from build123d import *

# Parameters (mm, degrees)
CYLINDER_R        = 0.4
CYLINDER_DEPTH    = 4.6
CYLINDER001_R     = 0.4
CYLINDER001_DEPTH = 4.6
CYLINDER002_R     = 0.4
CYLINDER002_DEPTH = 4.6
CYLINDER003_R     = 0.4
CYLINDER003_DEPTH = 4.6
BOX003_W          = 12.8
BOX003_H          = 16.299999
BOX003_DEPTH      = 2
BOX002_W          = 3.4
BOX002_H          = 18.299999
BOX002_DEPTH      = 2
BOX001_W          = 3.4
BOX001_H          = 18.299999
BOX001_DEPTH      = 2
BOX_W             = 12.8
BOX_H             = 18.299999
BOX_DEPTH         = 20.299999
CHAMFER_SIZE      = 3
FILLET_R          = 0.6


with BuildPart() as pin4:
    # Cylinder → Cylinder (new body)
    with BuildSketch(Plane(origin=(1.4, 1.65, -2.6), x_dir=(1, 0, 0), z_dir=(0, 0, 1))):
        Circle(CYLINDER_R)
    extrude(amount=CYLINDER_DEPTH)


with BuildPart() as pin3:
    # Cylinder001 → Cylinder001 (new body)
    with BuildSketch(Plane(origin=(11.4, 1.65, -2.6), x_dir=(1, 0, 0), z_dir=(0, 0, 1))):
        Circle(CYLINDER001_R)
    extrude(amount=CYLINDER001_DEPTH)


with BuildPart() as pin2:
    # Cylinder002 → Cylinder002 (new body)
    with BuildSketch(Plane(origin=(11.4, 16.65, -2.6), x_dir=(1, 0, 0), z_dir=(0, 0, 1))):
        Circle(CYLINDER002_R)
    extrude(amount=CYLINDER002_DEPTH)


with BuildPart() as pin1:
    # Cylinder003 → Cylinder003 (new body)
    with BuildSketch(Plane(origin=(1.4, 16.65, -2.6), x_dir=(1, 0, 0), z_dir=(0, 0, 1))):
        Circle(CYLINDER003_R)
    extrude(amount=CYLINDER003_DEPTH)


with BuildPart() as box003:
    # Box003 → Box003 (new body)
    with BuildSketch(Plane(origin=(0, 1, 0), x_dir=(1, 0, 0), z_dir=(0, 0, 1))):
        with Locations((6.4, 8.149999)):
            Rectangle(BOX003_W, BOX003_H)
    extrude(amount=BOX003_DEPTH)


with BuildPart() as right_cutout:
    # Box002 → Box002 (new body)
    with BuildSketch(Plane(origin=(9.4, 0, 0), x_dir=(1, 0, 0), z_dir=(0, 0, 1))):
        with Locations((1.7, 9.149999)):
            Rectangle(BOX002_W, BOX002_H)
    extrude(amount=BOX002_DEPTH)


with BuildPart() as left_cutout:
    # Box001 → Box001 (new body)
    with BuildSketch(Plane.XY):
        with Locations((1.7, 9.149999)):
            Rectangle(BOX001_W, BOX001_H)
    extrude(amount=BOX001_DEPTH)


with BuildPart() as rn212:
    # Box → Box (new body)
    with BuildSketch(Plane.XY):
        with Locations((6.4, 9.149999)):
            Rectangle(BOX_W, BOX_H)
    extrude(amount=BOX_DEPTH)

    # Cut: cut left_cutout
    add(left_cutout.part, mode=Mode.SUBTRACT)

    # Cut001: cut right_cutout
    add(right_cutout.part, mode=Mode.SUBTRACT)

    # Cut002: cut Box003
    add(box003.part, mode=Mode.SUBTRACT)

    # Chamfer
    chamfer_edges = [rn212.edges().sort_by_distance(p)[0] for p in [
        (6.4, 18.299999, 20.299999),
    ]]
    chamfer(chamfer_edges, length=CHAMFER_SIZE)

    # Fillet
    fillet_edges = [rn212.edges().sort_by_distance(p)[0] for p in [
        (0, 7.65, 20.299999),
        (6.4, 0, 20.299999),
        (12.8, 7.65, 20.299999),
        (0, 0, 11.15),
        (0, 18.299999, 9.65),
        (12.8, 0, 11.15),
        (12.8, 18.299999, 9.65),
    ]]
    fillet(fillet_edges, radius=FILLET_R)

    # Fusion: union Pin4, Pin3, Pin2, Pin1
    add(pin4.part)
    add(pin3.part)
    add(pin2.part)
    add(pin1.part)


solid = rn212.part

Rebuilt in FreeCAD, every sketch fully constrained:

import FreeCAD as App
import Part
import Sketcher
Q = App.Units.Quantity


def edges_at(feature, points):
    """Names of the edges that pass closest to the given points."""
    edges = feature.Shape.Edges
    near = lambda p: min(range(len(edges)), key=lambda i: edges[i].distToShape(Part.Vertex(*p))[0])
    return sorted({f"Edge{near(p) + 1}" for p in points})


def add_polygon(sketch, points):
    """Adds a closed chain of lines whose ends are joined by coincident constraints."""
    first, n = sketch.GeometryCount, len(points)
    for a, b in zip(points, points[1:] + points[:1]):
        sketch.addGeometry(Part.LineSegment(App.Vector(*a, 0), App.Vector(*b, 0)), False)
    for i in range(n):
        sketch.addConstraint(Sketcher.Constraint("Coincident", first + i, 2, first + (i + 1) % n, 1))

doc = App.newDocument("Part")
body = doc.addObject("PartDesign::Body", "Body")

# Sketch on XY plane
sketch1 = doc.addObject("Sketcher::SketchObject", "Sketch")
body.addObject(sketch1)
sketch1.AttachmentSupport = (doc.XY_Plane, [""])
sketch1.MapMode = "FlatFace"
sketch1.AttachmentOffset = App.Placement(App.Vector(0, 0, -2.6), App.Rotation())
sketch1.addGeometry(Part.Circle(App.Vector(1.4, 1.65, 0), App.Vector(0, 0, 1), 0.4), False)
sketch1.addConstraint([
    Sketcher.Constraint("Diameter", 0, Q("0.8 mm")),
    Sketcher.Constraint("DistanceX", -1, 1, 0, 3, Q("1.4 mm")),
    Sketcher.Constraint("DistanceY", -1, 1, 0, 3, Q("1.65 mm")),
])
pad1 = doc.addObject("PartDesign::Pad", "Pad")
body.addObject(pad1)
pad1.Profile = sketch1
pad1.Length = 4.6
body2 = doc.addObject("PartDesign::Body", "Body001")

# Sketch on XY plane
sketch2 = doc.addObject("Sketcher::SketchObject", "Sketch001")
body2.addObject(sketch2)
sketch2.AttachmentSupport = (doc.getObject("XY_Plane001"), [""])
sketch2.MapMode = "FlatFace"
sketch2.AttachmentOffset = App.Placement(App.Vector(0, 0, -2.6), App.Rotation())
sketch2.addGeometry(Part.Circle(App.Vector(11.4, 1.65, 0), App.Vector(0, 0, 1), 0.4), False)
sketch2.addConstraint([
    Sketcher.Constraint("Diameter", 0, Q("0.8 mm")),
    Sketcher.Constraint("DistanceX", -1, 1, 0, 3, Q("11.4 mm")),
    Sketcher.Constraint("DistanceY", -1, 1, 0, 3, Q("1.65 mm")),
])
pad2 = doc.addObject("PartDesign::Pad", "Pad001")
body2.addObject(pad2)
pad2.Profile = sketch2
pad2.Length = 4.6
body3 = doc.addObject("PartDesign::Body", "Body002")

# Sketch on XY plane
sketch3 = doc.addObject("Sketcher::SketchObject", "Sketch002")
body3.addObject(sketch3)
sketch3.AttachmentSupport = (doc.getObject("XY_Plane002"), [""])
sketch3.MapMode = "FlatFace"
sketch3.AttachmentOffset = App.Placement(App.Vector(0, 0, -2.6), App.Rotation())
sketch3.addGeometry(Part.Circle(App.Vector(11.4, 16.65, 0), App.Vector(0, 0, 1), 0.4), False)
sketch3.addConstraint([
    Sketcher.Constraint("Diameter", 0, Q("0.8 mm")),
    Sketcher.Constraint("DistanceX", -1, 1, 0, 3, Q("11.4 mm")),
    Sketcher.Constraint("DistanceY", -1, 1, 0, 3, Q("16.65 mm")),
])
pad3 = doc.addObject("PartDesign::Pad", "Pad002")
body3.addObject(pad3)
pad3.Profile = sketch3
pad3.Length = 4.6
body4 = doc.addObject("PartDesign::Body", "Body003")

# Sketch on XY plane
sketch4 = doc.addObject("Sketcher::SketchObject", "Sketch003")
body4.addObject(sketch4)
sketch4.AttachmentSupport = (doc.getObject("XY_Plane003"), [""])
sketch4.MapMode = "FlatFace"
sketch4.AttachmentOffset = App.Placement(App.Vector(0, 0, -2.6), App.Rotation())
sketch4.addGeometry(Part.Circle(App.Vector(1.4, 16.65, 0), App.Vector(0, 0, 1), 0.4), False)
sketch4.addConstraint([
    Sketcher.Constraint("Diameter", 0, Q("0.8 mm")),
    Sketcher.Constraint("DistanceX", -1, 1, 0, 3, Q("1.4 mm")),
    Sketcher.Constraint("DistanceY", -1, 1, 0, 3, Q("16.65 mm")),
])
pad4 = doc.addObject("PartDesign::Pad", "Pad003")
body4.addObject(pad4)
pad4.Profile = sketch4
pad4.Length = 4.6
body5 = doc.addObject("PartDesign::Body", "Body004")

# Sketch on XY plane
sketch5 = doc.addObject("Sketcher::SketchObject", "Sketch004")
body5.addObject(sketch5)
sketch5.AttachmentSupport = (doc.getObject("XY_Plane004"), [""])
sketch5.MapMode = "FlatFace"
add_polygon(sketch5, [(0, 17.299999), (0, 1), (12.8, 1), (12.8, 17.299999)])  # lines 0-3
sketch5.addConstraint([
    Sketcher.Constraint("Vertical", 0),
    Sketcher.Constraint("Horizontal", 1),
    Sketcher.Constraint("Vertical", 2),
    Sketcher.Constraint("Horizontal", 3),
    Sketcher.Constraint("PointOnObject", 0, 2, -2),
    Sketcher.Constraint("DistanceX", 1, 1, 1, 2, Q("12.8 mm")),
    Sketcher.Constraint("DistanceY", 0, 2, 0, 1, Q("16.299999 mm")),
    Sketcher.Constraint("DistanceY", -1, 1, 0, 2, Q("1 mm")),
])
pad5 = doc.addObject("PartDesign::Pad", "Pad004")
body5.addObject(pad5)
pad5.Profile = sketch5
pad5.Length = 2
body6 = doc.addObject("PartDesign::Body", "Body005")

# Sketch on XY plane
sketch6 = doc.addObject("Sketcher::SketchObject", "Sketch005")
body6.addObject(sketch6)
sketch6.AttachmentSupport = (doc.getObject("XY_Plane005"), [""])
sketch6.MapMode = "FlatFace"
add_polygon(sketch6, [(9.4, 18.299999), (9.4, 0), (12.8, 0), (12.8, 18.299999)])  # lines 0-3
sketch6.addConstraint([
    Sketcher.Constraint("Vertical", 0),
    Sketcher.Constraint("Horizontal", 1),
    Sketcher.Constraint("Vertical", 2),
    Sketcher.Constraint("Horizontal", 3),
    Sketcher.Constraint("PointOnObject", 0, 2, -1),
    Sketcher.Constraint("DistanceX", 1, 1, 1, 2, Q("3.4 mm")),
    Sketcher.Constraint("DistanceY", 0, 2, 0, 1, Q("18.299999 mm")),
    Sketcher.Constraint("DistanceX", -1, 1, 0, 2, Q("9.4 mm")),
])
pad6 = doc.addObject("PartDesign::Pad", "Pad005")
body6.addObject(pad6)
pad6.Profile = sketch6
pad6.Length = 2
body7 = doc.addObject("PartDesign::Body", "Body006")

# Sketch on XY plane
sketch7 = doc.addObject("Sketcher::SketchObject", "Sketch006")
body7.addObject(sketch7)
sketch7.AttachmentSupport = (doc.getObject("XY_Plane006"), [""])
sketch7.MapMode = "FlatFace"
add_polygon(sketch7, [(0, 18.299999), (0, 0), (3.4, 0), (3.4, 18.299999)])  # lines 0-3
sketch7.addConstraint([
    Sketcher.Constraint("Vertical", 0),
    Sketcher.Constraint("Horizontal", 1),
    Sketcher.Constraint("Vertical", 2),
    Sketcher.Constraint("Horizontal", 3),
    Sketcher.Constraint("Coincident", 0, 2, -1, 1),
    Sketcher.Constraint("DistanceX", 1, 1, 1, 2, Q("3.4 mm")),
    Sketcher.Constraint("DistanceY", 0, 2, 0, 1, Q("18.299999 mm")),
])
pad7 = doc.addObject("PartDesign::Pad", "Pad006")
body7.addObject(pad7)
pad7.Profile = sketch7
pad7.Length = 2
body8 = doc.addObject("PartDesign::Body", "Body007")

# Sketch on XY plane
sketch8 = doc.addObject("Sketcher::SketchObject", "Sketch007")
body8.addObject(sketch8)
sketch8.AttachmentSupport = (doc.getObject("XY_Plane007"), [""])
sketch8.MapMode = "FlatFace"
add_polygon(sketch8, [(0, 18.299999), (0, 0), (12.8, 0), (12.8, 18.299999)])  # lines 0-3
sketch8.addConstraint([
    Sketcher.Constraint("Vertical", 0),
    Sketcher.Constraint("Horizontal", 1),
    Sketcher.Constraint("Vertical", 2),
    Sketcher.Constraint("Horizontal", 3),
    Sketcher.Constraint("Coincident", 0, 2, -1, 1),
    Sketcher.Constraint("DistanceX", 1, 1, 1, 2, Q("12.8 mm")),
    Sketcher.Constraint("DistanceY", 0, 2, 0, 1, Q("18.299999 mm")),
])
pad8 = doc.addObject("PartDesign::Pad", "Pad007")
body8.addObject(pad8)
pad8.Profile = sketch8
pad8.Length = 20.299999
doc.recompute()

boolean = doc.addObject("PartDesign::Boolean", "Boolean")
body8.addObject(boolean)
boolean.Type = "Cut"
boolean.addObjects([body7])
doc.recompute()

boolean2 = doc.addObject("PartDesign::Boolean", "Boolean001")
body8.addObject(boolean2)
boolean2.Type = "Cut"
boolean2.addObjects([body6])
doc.recompute()

boolean3 = doc.addObject("PartDesign::Boolean", "Boolean002")
body8.addObject(boolean3)
boolean3.Type = "Cut"
boolean3.addObjects([body5])
doc.recompute()

chamfer = doc.addObject("PartDesign::Chamfer", "Chamfer")
body8.addObject(chamfer)
chamfer.Base = (boolean3, edges_at(boolean3, [(6.4, 18.3, 20.3)]))
chamfer.Size = 3
doc.recompute()

fillet = doc.addObject("PartDesign::Fillet", "Fillet")
body8.addObject(fillet)
fillet.Base = (chamfer, edges_at(chamfer, [
    (0, 7.65, 20.3),
    (6.4, 0, 20.3),
    (12.8, 7.65, 20.3),
    (0, 0, 11.15),
    (0, 18.3, 9.65),
    (12.8, 0, 11.15),
    (12.8, 18.3, 9.65),
]))
fillet.Radius = 0.6
doc.recompute()

boolean4 = doc.addObject("PartDesign::Boolean", "Boolean003")
body8.addObject(boolean4)
boolean4.Type = "Fuse"
boolean4.addObjects([body])
doc.recompute()

boolean5 = doc.addObject("PartDesign::Boolean", "Boolean004")
body8.addObject(boolean5)
boolean5.Type = "Fuse"
boolean5.addObjects([body2])
doc.recompute()

boolean6 = doc.addObject("PartDesign::Boolean", "Boolean005")
body8.addObject(boolean6)
boolean6.Type = "Fuse"
boolean6.addObjects([body3])
doc.recompute()

boolean7 = doc.addObject("PartDesign::Boolean", "Boolean006")
body8.addObject(boolean7)
boolean7.Type = "Fuse"
boolean7.addObjects([body4])

doc.recompute()
